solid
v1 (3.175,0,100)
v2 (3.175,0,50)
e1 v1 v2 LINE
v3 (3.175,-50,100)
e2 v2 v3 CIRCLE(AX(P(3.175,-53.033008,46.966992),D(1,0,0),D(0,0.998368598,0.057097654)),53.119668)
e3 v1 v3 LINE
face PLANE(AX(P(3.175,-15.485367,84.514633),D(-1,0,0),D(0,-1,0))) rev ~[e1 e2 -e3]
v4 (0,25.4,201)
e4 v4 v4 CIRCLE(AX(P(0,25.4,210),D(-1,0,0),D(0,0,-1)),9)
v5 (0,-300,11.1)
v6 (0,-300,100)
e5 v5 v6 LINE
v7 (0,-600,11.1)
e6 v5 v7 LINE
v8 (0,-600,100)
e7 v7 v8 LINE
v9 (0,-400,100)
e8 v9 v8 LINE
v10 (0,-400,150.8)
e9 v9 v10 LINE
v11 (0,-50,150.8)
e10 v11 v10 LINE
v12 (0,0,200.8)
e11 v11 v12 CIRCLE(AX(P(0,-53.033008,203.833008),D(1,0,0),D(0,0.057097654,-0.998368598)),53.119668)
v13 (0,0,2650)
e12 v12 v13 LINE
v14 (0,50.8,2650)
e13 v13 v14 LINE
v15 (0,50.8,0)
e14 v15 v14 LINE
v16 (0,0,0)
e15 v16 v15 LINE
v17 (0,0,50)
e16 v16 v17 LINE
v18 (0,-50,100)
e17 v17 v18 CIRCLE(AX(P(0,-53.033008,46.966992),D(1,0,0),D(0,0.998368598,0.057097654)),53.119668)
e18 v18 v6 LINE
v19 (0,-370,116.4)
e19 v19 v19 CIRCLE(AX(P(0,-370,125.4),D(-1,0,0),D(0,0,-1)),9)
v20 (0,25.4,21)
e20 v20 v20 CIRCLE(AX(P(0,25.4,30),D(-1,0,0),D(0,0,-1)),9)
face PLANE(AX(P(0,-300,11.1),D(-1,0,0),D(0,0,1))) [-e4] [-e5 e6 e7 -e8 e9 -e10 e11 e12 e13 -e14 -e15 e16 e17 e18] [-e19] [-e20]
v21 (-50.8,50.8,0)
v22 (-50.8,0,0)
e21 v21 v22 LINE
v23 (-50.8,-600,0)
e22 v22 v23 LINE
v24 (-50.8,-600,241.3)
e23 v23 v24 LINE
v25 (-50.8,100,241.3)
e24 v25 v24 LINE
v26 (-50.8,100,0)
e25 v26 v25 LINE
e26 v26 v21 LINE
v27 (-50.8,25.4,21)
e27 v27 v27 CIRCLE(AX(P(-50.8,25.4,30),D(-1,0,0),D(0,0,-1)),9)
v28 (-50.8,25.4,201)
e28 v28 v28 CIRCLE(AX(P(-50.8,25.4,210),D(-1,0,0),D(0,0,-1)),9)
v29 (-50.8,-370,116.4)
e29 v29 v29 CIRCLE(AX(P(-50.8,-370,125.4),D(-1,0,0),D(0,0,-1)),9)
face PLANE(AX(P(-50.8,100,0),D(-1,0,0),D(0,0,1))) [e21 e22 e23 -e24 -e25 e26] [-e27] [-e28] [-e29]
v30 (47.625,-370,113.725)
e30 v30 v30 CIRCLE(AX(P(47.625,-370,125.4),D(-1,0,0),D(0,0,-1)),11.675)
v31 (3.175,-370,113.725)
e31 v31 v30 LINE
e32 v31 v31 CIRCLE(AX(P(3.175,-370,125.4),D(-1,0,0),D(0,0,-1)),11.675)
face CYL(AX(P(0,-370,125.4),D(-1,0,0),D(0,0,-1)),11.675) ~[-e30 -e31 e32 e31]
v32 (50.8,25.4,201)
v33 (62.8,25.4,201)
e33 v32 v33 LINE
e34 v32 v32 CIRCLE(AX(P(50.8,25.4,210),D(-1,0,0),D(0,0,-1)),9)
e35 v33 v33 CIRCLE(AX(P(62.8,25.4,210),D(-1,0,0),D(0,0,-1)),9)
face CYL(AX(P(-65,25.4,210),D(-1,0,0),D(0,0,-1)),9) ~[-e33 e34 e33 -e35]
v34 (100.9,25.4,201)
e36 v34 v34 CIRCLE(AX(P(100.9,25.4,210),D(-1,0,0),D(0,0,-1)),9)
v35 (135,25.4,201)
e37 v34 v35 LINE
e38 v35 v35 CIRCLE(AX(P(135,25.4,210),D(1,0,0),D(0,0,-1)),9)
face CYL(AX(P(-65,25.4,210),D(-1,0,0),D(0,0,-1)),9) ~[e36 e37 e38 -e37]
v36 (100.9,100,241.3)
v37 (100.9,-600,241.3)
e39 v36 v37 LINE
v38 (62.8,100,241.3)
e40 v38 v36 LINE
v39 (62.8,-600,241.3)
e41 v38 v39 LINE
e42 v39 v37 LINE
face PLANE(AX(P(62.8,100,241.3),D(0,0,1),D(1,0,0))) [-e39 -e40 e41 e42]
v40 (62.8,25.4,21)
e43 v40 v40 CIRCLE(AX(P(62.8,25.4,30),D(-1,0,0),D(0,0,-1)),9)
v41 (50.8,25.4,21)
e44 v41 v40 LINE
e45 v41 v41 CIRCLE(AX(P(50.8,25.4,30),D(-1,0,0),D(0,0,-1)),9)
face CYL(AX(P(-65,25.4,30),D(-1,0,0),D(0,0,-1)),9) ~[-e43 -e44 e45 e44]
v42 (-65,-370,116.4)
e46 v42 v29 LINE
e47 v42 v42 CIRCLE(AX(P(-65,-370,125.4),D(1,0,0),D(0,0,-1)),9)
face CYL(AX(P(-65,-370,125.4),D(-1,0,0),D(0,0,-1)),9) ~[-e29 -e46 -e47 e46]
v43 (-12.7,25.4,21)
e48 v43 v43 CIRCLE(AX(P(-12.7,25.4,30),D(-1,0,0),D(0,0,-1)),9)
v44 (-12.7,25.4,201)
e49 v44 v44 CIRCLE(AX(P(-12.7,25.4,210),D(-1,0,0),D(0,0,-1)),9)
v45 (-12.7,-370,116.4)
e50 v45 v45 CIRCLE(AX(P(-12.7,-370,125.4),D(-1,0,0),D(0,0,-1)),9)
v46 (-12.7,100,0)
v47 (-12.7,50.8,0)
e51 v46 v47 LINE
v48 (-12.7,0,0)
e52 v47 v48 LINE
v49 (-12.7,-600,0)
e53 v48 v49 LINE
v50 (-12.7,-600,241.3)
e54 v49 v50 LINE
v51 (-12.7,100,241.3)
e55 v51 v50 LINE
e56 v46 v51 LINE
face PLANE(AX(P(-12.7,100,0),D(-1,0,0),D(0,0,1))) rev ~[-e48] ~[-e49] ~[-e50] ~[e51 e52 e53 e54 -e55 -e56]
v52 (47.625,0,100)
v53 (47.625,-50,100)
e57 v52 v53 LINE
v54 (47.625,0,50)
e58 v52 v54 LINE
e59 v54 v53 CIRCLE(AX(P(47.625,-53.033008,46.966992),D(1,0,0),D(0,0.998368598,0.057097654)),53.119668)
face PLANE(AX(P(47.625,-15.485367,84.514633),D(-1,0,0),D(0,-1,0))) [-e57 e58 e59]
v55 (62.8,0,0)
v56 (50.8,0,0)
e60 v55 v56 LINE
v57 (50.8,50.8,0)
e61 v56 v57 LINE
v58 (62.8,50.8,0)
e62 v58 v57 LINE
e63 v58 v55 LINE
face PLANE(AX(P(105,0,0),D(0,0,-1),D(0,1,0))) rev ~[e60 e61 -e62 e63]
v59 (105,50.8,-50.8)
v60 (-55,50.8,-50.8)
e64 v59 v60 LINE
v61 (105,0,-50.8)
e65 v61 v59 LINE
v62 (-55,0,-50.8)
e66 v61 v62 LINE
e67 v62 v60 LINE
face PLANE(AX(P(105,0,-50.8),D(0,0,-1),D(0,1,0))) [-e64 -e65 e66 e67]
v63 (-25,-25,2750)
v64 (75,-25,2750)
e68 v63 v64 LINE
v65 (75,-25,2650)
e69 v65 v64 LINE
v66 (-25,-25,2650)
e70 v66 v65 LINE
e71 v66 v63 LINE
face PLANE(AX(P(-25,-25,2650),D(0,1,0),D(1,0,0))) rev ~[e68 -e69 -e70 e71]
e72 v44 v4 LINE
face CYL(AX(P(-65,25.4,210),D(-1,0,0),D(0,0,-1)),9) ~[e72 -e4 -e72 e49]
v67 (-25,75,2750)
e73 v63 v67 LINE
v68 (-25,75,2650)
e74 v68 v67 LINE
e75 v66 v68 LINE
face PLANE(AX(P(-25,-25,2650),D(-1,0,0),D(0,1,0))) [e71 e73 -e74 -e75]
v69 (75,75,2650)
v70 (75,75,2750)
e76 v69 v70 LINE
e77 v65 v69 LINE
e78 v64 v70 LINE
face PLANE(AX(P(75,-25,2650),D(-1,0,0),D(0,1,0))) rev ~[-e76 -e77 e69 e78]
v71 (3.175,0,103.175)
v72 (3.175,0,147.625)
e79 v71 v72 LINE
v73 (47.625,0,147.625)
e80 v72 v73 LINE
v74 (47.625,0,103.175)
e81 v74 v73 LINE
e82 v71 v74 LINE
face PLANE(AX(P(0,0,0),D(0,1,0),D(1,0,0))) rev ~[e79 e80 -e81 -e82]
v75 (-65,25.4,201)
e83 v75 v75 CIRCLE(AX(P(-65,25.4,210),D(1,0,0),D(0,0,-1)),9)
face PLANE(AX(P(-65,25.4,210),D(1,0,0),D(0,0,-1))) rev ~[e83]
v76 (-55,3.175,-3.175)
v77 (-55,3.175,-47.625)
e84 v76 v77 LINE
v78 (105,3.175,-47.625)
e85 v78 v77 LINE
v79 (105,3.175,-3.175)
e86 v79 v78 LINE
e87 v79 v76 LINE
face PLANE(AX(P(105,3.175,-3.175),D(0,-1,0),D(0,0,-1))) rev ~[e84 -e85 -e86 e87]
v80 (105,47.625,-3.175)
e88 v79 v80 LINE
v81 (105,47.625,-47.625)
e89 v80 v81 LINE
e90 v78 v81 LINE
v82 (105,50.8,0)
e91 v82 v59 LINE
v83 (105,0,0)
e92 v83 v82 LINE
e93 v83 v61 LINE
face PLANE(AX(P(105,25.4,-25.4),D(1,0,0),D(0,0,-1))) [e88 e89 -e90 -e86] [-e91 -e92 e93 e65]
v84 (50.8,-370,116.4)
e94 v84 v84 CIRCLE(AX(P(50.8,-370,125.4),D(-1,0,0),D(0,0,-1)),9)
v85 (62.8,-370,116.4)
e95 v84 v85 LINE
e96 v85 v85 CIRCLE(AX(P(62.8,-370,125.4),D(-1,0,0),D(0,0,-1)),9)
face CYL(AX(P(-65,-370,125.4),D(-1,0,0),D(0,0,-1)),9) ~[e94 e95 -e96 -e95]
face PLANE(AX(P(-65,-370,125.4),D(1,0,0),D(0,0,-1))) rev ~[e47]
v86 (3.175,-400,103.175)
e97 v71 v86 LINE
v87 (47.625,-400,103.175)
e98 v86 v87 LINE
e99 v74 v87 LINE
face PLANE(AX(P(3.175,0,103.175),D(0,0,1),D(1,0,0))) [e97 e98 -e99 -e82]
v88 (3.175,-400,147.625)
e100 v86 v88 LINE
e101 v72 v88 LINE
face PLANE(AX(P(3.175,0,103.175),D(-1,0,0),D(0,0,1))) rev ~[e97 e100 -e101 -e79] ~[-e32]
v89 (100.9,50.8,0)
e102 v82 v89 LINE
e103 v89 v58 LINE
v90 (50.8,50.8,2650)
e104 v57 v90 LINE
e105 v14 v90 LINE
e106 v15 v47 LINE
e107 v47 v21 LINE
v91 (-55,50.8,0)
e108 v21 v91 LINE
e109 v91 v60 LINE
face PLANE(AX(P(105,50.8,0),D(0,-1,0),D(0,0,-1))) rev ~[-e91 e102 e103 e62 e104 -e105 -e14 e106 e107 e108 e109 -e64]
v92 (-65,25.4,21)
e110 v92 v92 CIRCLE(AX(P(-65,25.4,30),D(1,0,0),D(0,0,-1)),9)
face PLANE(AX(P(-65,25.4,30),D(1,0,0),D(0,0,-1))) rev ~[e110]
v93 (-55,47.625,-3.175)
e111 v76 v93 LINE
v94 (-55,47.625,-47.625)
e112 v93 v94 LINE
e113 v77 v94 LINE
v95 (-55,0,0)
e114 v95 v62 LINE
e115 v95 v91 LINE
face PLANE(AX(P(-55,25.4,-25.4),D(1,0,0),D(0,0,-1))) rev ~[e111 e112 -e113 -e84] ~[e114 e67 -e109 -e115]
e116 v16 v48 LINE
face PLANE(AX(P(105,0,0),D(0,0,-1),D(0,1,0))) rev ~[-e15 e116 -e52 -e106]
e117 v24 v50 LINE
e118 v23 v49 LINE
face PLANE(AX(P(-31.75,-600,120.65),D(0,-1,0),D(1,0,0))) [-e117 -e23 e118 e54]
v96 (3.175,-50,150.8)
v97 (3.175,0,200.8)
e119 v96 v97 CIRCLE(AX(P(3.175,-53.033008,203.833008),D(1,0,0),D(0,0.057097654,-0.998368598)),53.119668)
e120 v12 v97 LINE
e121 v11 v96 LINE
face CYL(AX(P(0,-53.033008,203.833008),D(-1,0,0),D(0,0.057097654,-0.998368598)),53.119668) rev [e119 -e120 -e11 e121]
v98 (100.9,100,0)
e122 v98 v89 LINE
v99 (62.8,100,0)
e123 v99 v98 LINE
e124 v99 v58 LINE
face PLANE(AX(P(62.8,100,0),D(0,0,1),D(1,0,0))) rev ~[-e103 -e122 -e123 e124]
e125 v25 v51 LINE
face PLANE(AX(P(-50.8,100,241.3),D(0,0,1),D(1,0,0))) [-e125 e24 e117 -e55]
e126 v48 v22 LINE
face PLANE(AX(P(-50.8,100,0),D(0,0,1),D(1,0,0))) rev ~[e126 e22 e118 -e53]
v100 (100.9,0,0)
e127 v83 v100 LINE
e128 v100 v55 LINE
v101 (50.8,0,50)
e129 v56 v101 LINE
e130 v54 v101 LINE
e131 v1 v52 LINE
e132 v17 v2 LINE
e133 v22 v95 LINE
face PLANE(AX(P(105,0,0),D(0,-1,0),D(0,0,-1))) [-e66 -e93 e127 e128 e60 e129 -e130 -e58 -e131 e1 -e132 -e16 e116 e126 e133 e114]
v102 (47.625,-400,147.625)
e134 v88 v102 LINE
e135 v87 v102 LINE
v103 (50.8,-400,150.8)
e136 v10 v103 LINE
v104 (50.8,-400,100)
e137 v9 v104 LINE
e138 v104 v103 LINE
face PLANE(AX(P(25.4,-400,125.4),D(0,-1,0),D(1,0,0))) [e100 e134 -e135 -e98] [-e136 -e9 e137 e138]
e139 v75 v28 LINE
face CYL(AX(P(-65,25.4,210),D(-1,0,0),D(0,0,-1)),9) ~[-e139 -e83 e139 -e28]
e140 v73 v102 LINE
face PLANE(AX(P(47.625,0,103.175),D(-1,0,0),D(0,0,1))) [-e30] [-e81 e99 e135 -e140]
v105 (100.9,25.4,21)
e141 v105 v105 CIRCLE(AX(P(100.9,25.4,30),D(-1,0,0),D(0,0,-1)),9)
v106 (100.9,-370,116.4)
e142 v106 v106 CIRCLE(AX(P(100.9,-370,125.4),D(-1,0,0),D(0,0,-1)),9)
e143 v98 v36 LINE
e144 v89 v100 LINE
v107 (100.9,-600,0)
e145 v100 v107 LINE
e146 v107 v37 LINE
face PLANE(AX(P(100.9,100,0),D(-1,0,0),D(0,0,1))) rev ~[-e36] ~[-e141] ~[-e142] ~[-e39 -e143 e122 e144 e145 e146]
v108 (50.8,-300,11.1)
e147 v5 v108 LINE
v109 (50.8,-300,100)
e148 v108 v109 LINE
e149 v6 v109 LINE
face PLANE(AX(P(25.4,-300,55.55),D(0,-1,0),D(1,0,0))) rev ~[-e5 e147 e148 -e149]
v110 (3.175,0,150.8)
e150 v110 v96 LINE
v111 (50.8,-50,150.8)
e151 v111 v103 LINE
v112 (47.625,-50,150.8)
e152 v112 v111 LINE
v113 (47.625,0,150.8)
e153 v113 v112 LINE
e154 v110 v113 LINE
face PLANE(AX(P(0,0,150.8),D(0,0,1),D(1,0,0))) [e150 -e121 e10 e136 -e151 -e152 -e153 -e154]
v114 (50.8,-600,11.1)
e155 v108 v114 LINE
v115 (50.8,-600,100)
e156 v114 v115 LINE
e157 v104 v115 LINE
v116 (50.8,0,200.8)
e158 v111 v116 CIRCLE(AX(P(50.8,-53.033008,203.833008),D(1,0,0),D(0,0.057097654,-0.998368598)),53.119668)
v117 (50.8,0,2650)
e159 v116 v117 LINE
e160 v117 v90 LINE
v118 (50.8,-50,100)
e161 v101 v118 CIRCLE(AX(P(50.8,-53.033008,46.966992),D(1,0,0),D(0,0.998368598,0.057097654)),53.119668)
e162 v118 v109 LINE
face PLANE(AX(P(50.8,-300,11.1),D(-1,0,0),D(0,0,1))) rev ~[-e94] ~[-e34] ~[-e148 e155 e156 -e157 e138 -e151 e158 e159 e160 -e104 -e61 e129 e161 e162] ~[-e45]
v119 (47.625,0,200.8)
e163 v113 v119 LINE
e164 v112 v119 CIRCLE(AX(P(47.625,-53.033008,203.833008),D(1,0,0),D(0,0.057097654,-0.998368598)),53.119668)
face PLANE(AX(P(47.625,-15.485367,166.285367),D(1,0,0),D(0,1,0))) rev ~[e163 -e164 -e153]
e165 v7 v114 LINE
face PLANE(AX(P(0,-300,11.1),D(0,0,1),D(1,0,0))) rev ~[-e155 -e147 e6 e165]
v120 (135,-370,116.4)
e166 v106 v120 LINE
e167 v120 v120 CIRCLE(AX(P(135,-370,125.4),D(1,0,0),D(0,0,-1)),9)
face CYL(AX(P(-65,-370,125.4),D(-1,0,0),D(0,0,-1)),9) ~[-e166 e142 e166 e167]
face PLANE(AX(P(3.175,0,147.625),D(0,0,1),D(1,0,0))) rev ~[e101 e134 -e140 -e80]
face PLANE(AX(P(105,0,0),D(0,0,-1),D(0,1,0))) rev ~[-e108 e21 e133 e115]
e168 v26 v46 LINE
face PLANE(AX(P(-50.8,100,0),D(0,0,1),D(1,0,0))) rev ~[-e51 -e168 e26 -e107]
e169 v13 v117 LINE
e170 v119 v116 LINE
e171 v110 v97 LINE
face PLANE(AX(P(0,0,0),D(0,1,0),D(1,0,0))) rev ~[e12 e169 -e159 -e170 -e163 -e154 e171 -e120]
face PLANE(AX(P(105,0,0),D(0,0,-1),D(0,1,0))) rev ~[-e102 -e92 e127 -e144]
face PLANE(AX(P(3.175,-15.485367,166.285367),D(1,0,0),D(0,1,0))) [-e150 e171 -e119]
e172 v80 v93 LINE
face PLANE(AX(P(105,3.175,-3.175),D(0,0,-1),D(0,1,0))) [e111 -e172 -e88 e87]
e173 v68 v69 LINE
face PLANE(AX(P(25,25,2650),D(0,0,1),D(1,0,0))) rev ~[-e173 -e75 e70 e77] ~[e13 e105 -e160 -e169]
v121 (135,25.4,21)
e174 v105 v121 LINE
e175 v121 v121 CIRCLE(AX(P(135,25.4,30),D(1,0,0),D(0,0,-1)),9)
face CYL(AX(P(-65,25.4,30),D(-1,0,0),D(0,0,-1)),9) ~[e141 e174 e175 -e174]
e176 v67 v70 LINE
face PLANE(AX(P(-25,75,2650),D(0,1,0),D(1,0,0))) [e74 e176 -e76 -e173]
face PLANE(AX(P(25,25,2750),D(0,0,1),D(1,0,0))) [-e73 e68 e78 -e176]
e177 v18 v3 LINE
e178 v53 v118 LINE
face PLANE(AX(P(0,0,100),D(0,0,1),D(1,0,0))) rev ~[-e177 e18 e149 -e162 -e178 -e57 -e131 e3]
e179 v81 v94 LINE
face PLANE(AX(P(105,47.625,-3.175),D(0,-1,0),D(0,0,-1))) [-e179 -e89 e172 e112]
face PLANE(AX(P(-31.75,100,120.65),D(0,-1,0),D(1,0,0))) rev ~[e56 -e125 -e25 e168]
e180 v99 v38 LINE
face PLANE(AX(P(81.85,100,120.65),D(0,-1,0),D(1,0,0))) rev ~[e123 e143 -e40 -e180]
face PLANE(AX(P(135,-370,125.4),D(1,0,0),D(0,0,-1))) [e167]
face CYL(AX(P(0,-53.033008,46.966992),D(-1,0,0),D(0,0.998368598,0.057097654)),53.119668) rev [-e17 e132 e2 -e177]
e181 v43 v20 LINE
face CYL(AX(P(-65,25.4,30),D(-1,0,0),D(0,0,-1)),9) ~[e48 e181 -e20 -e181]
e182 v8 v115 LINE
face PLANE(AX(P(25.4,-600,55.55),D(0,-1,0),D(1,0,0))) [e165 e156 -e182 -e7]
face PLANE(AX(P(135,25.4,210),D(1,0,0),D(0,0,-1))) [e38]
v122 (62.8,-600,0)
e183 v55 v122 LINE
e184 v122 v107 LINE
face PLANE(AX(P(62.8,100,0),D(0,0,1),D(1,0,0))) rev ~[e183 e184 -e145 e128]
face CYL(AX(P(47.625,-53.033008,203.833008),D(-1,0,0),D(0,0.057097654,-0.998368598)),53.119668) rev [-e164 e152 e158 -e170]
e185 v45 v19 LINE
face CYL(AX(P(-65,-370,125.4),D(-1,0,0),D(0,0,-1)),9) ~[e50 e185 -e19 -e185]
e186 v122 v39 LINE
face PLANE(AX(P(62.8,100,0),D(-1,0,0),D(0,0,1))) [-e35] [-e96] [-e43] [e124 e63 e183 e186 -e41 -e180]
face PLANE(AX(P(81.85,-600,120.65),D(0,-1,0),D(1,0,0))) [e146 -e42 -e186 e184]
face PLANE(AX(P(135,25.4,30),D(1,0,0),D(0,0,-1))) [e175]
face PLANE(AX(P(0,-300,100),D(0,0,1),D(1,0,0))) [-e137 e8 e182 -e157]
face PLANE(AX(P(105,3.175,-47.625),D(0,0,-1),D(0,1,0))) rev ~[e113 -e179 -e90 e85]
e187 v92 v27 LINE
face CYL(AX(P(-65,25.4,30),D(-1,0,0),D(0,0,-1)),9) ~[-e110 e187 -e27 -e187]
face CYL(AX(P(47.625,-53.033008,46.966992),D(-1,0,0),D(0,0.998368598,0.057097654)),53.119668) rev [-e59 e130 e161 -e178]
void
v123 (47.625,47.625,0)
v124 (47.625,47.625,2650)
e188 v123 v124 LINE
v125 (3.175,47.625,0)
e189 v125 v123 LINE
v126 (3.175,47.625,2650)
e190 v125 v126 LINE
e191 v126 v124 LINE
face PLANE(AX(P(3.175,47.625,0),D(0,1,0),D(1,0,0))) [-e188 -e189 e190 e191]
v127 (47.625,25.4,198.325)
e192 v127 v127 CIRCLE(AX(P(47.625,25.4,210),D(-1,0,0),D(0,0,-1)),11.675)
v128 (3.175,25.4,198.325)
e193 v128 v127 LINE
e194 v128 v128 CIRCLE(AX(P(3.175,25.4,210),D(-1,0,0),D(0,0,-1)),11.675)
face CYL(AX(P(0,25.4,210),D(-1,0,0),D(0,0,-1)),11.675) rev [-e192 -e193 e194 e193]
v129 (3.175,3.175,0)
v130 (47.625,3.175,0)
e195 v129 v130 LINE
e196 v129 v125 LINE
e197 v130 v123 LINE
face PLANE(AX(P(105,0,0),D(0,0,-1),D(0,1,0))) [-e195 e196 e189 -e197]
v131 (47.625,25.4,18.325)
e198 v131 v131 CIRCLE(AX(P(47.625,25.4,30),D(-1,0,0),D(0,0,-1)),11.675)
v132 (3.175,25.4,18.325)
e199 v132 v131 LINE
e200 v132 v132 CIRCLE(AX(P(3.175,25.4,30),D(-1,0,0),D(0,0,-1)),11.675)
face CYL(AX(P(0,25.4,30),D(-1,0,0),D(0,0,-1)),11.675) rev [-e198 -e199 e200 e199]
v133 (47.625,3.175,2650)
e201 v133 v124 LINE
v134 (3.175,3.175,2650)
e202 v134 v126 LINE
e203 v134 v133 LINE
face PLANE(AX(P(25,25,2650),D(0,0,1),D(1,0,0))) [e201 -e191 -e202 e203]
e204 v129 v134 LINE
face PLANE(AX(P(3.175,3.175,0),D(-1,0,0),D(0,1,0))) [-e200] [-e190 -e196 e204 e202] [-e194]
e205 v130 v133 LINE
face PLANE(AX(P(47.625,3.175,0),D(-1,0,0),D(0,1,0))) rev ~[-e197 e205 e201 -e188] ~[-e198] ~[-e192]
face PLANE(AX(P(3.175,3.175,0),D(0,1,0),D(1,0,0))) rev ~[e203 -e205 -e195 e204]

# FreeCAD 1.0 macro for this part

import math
import FreeCAD as App
import Part
import Sketcher
from FreeCAD import Vector


def add_polygon(sketch, points):
    """Adds a closed chain of lines whose ends are joined by coincident constraints."""
    first, n = sketch.GeometryCount, len(points)
    for a, b in zip(points, points[1:] + points[:1]):
        sketch.addGeometry(Part.LineSegment(App.Vector(*a, 0), App.Vector(*b, 0)), False)
    for i in range(n):
        sketch.addConstraint(Sketcher.Constraint("Coincident", first + i, 2, first + (i + 1) % n, 1))

doc = App.newDocument("Part")
params = doc.addObject("Spreadsheet::Sheet", "Params")
for row, (alias, value) in enumerate([
    ("sketch1_diameter", "18 mm"),
    ("pad1_length", "200 mm"),
    ("sketch2_width", "100 mm"),
    ("pad2_length", "100 mm"),
    ("sketch3_width", "38.1 mm"),
    ("sketch3_height", "241.3 mm"),
    ("pad3_length", "700 mm"),
    ("sketch4_diameter", "18 mm"),
    ("pad4_length", "200 mm"),
    ("sketch5_width", "50.8 mm"),
    ("sketch5_width2", "44.45 mm"),
    ("pad5_length", "160 mm"),
    ("sketch6_width", "38.1 mm"),
    ("sketch6_height", "241.3 mm"),
    ("pad6_length", "700 mm"),
    ("sketch7_width", "50.8 mm"),
    ("sketch7_height", "88.9 mm"),
    ("pad7_length", "300 mm"),
    ("sketch8_width", "50 mm"),
    ("pad8_length", "3.175 mm"),
    ("sketch9_width", "50 mm"),
    ("pad9_length", "3.175 mm"),
    ("sketch10_width", "50 mm"),
    ("pad10_length", "3.175 mm"),
    ("sketch11_diameter", "17 mm"),
    ("sketch11_diameter2", "23.35 mm"),
    ("pad11_length", "50.8 mm"),
    ("sketch12_diameter", "18 mm"),
    ("pad12_length", "50.8 mm"),
    ("sketch13_width", "50.8 mm"),
    ("sketch13_width2", "44.45 mm"),
    ("pad13_length", "400 mm"),
    ("sketch14_diameter", "17 mm"),
    ("sketch14_diameter2", "23.35 mm"),
    ("pad14_length", "50.8 mm"),
    ("sketch15_diameter", "17 mm"),
    ("sketch15_diameter2", "23.35 mm"),
    ("pad15_length", "50.8 mm"),
    ("sketch16_diameter", "18 mm"),
    ("pad16_length", "50.8 mm"),
    ("sketch17_diameter", "18 mm"),
    ("pad17_length", "50.8 mm"),
    ("sketch18_width", "50.8 mm"),
    ("sketch18_width2", "44.45 mm"),
    ("pad18_length", "2650 mm"),
    ("sketch19_width", "50 mm"),
    ("pad19_length", "3.175 mm"),
    ("sketch20_diameter", "18 mm"),
    ("pad20_length", "200 mm"),
], start=1):
    params.set(f"A{row}", alias)
    params.set(f"B{row}", "=" + value)
    params.setAlias(f"B{row}", alias)

body = doc.addObject("PartDesign::Body", "Body")

sketch1 = doc.addObject("Sketcher::SketchObject", "Sketch")
body.addObject(sketch1)
sketch1.AttachmentSupport = (doc.YZ_Plane, [""])
sketch1.MapMode = "FlatFace"
sketch1.AttachmentOffset = App.Placement(Vector(0, 0, -65), App.Rotation())
sketch1.addGeometry(Part.Circle(Vector(25.4, 30, 0), Vector(0, 0, 1), 9), False)
sketch1.addConstraint(Sketcher.Constraint("Diameter", 0, 18.0))
sketch1.addConstraint(Sketcher.Constraint("DistanceY", -1, 1, 0, 3, 30.0))
sketch1.addConstraint(Sketcher.Constraint("DistanceX", -1, 1, 0, 3, 25.4))
sketch1.setExpression("Constraints[0]", "Params.sketch1_diameter")
pad1 = doc.addObject("PartDesign::Pad", "Pad")
body.addObject(pad1)
pad1.Profile = sketch1
pad1.setExpression("Length", "Params.pad1_length")
body2 = doc.addObject("PartDesign::Body", "Body001")

sketch2 = doc.addObject("Sketcher::SketchObject", "Sketch001")
body2.addObject(sketch2)
sketch2.AttachmentSupport = (doc.getObject("XY_Plane001"), [""])
sketch2.MapMode = "FlatFace"
sketch2.AttachmentOffset = App.Placement(Vector(0, 0, 2650), App.Rotation())
add_polygon(sketch2, [(-25, 75), (-25, -25), (75, -25), (75, 75)])
sketch2.addConstraint(Sketcher.Constraint("Vertical", 0))
sketch2.addConstraint(Sketcher.Constraint("Horizontal", 1))
sketch2.addConstraint(Sketcher.Constraint("Vertical", 2))
sketch2.addConstraint(Sketcher.Constraint("Horizontal", 3))
sketch2.addConstraint(Sketcher.Constraint("Equal", 3, 0))
sketch2.addConstraint(Sketcher.Constraint("DistanceX", 1, 1, 1, 2, 100.0))
sketch2.addConstraint(Sketcher.Constraint("DistanceX", 0, 2, -1, 1, 25.0))
sketch2.addConstraint(Sketcher.Constraint("DistanceY", 0, 2, -1, 1, 25.0))
sketch2.setExpression("Constraints[9]", "Params.sketch2_width")
pad2 = doc.addObject("PartDesign::Pad", "Pad001")
body2.addObject(pad2)
pad2.Profile = sketch2
pad2.setExpression("Length", "Params.pad2_length")
body3 = doc.addObject("PartDesign::Body", "Body002")

sketch3 = doc.addObject("Sketcher::SketchObject", "Sketch002")
body3.addObject(sketch3)
sketch3.AttachmentSupport = (doc.getObject("XZ_Plane002"), [""])
sketch3.MapMode = "FlatFace"
sketch3.AttachmentOffset = App.Placement(Vector(0, 0, -100), App.Rotation())
add_polygon(sketch3, [(-50.8, 241.3), (-50.8, 0), (-12.7, 0), (-12.7, 241.3)])
sketch3.addConstraint(Sketcher.Constraint("Vertical", 0))
sketch3.addConstraint(Sketcher.Constraint("Horizontal", 1))
sketch3.addConstraint(Sketcher.Constraint("Vertical", 2))
sketch3.addConstraint(Sketcher.Constraint("Horizontal", 3))
sketch3.addConstraint(Sketcher.Constraint("PointOnObject", 0, 2, -1))
sketch3.addConstraint(Sketcher.Constraint("DistanceX", 1, 1, 1, 2, 38.1))
sketch3.addConstraint(Sketcher.Constraint("DistanceY", 0, 2, 0, 1, 241.3))
sketch3.addConstraint(Sketcher.Constraint("DistanceX", 0, 2, -1, 1, 50.8))
sketch3.setExpression("Constraints[9]", "Params.sketch3_width")
sketch3.setExpression("Constraints[10]", "Params.sketch3_height")
pad3 = doc.addObject("PartDesign::Pad", "Pad002")
body3.addObject(pad3)
pad3.Profile = sketch3
pad3.setExpression("Length", "Params.pad3_length")
body4 = doc.addObject("PartDesign::Body", "Body003")

sketch4 = doc.addObject("Sketcher::SketchObject", "Sketch003")
body4.addObject(sketch4)
sketch4.AttachmentSupport = (doc.getObject("YZ_Plane003"), [""])
sketch4.MapMode = "FlatFace"
sketch4.AttachmentOffset = App.Placement(Vector(0, 0, -65), App.Rotation())
sketch4.addGeometry(Part.Circle(Vector(-370, 125.4, 0), Vector(0, 0, 1), 9), False)
sketch4.addConstraint(Sketcher.Constraint("Diameter", 0, 18.0))
sketch4.addConstraint(Sketcher.Constraint("DistanceX", 0, 3, -1, 1, 370.0))
sketch4.addConstraint(Sketcher.Constraint("DistanceY", -1, 1, 0, 3, 125.4))
sketch4.setExpression("Constraints[0]", "Params.sketch4_diameter")
pad4 = doc.addObject("PartDesign::Pad", "Pad003")
body4.addObject(pad4)
pad4.Profile = sketch4
pad4.setExpression("Length", "Params.pad4_length")
body5 = doc.addObject("PartDesign::Body", "Body004")

sketch5 = doc.addObject("Sketcher::SketchObject", "Sketch004")
body5.addObject(sketch5)
sketch5.AttachmentSupport = (doc.getObject("YZ_Plane004"), [""])
sketch5.MapMode = "FlatFace"
sketch5.AttachmentOffset = App.Placement(Vector(0, 0, 105), App.Rotation())
add_polygon(sketch5, [(50.8, 0), (0, 0), (0, -50.8), (50.8, -50.8)])
add_polygon(sketch5, [(3.175, -47.625), (3.175, -3.175), (47.625, -3.175), (47.625, -47.625)])
sketch5.addConstraint(Sketcher.Constraint("Horizontal", 0))
sketch5.addConstraint(Sketcher.Constraint("Vertical", 1))
sketch5.addConstraint(Sketcher.Constraint("Horizontal", 2))
sketch5.addConstraint(Sketcher.Constraint("Vertical", 3))
sketch5.addConstraint(Sketcher.Constraint("Vertical", 4))
sketch5.addConstraint(Sketcher.Constraint("Horizontal", 5))
sketch5.addConstraint(Sketcher.Constraint("Vertical", 6))
sketch5.addConstraint(Sketcher.Constraint("Horizontal", 7))
sketch5.addConstraint(Sketcher.Constraint("Coincident", 0, 2, -1, 1))
sketch5.addConstraint(Sketcher.Constraint("Equal", 2, 1))
sketch5.addConstraint(Sketcher.Constraint("Equal", 7, 4))
sketch5.addConstraint(Sketcher.Constraint("DistanceX", 0, 2, 0, 1, 50.8))
sketch5.addConstraint(Sketcher.Constraint("DistanceX", 5, 1, 5, 2, 44.45))
sketch5.addConstraint(Sketcher.Constraint("DistanceX", -1, 1, 4, 2, 3.175))
sketch5.addConstraint(Sketcher.Constraint("DistanceY", 4, 2, -1, 1, 3.175))
sketch5.setExpression("Constraints[19]", "Params.sketch5_width")
sketch5.setExpression("Constraints[20]", "Params.sketch5_width2")
pad5 = doc.addObject("PartDesign::Pad", "Pad004")
body5.addObject(pad5)
pad5.Profile = sketch5
pad5.setExpression("Length", "Params.pad5_length")
pad5.Reversed = True
body6 = doc.addObject("PartDesign::Body", "Body005")

sketch6 = doc.addObject("Sketcher::SketchObject", "Sketch005")
body6.addObject(sketch6)
sketch6.AttachmentSupport = (doc.getObject("XZ_Plane005"), [""])
sketch6.MapMode = "FlatFace"
sketch6.AttachmentOffset = App.Placement(Vector(0, 0, -100), App.Rotation())
add_polygon(sketch6, [(62.8, 241.3), (62.8, 0), (100.9, 0), (100.9, 241.3)])
sketch6.addConstraint(Sketcher.Constraint("Vertical", 0))
sketch6.addConstraint(Sketcher.Constraint("Horizontal", 1))
sketch6.addConstraint(Sketcher.Constraint("Vertical", 2))
sketch6.addConstraint(Sketcher.Constraint("Horizontal", 3))
sketch6.addConstraint(Sketcher.Constraint("PointOnObject", 0, 2, -1))
sketch6.addConstraint(Sketcher.Constraint("DistanceX", 1, 1, 1, 2, 38.1))
sketch6.addConstraint(Sketcher.Constraint("DistanceY", 0, 2, 0, 1, 241.3))
sketch6.addConstraint(Sketcher.Constraint("DistanceX", -1, 1, 0, 2, 62.8))
sketch6.setExpression("Constraints[9]", "Params.sketch6_width")
sketch6.setExpression("Constraints[10]", "Params.sketch6_height")
pad6 = doc.addObject("PartDesign::Pad", "Pad005")
body6.addObject(pad6)
pad6.Profile = sketch6
pad6.setExpression("Length", "Params.pad6_length")
body7 = doc.addObject("PartDesign::Body", "Body006")

sketch7 = doc.addObject("Sketcher::SketchObject", "Sketch006")
body7.addObject(sketch7)
sketch7.AttachmentSupport = (doc.getObject("XZ_Plane006"), [""])
sketch7.MapMode = "FlatFace"
sketch7.AttachmentOffset = App.Placement(Vector(0, 0, 300), App.Rotation())
add_polygon(sketch7, [(0, 100), (0, 11.1), (50.8, 11.1), (50.8, 100)])
sketch7.addConstraint(Sketcher.Constraint("Vertical", 0))
sketch7.addConstraint(Sketcher.Constraint("Horizontal", 1))
sketch7.addConstraint(Sketcher.Constraint("Vertical", 2))
sketch7.addConstraint(Sketcher.Constraint("Horizontal", 3))
sketch7.addConstraint(Sketcher.Constraint("PointOnObject", 0, 2, -2))
sketch7.addConstraint(Sketcher.Constraint("DistanceX", 1, 1, 1, 2, 50.8))
sketch7.addConstraint(Sketcher.Constraint("DistanceY", 0, 2, 0, 1, 88.9))
sketch7.addConstraint(Sketcher.Constraint("DistanceY", -1, 1, 2, 2, 100.0))
sketch7.setExpression("Constraints[9]", "Params.sketch7_width")
sketch7.setExpression("Constraints[10]", "Params.sketch7_height")
pad7 = doc.addObject("PartDesign::Pad", "Pad006")
body7.addObject(pad7)
pad7.Profile = sketch7
pad7.setExpression("Length", "Params.pad7_length")
body8 = doc.addObject("PartDesign::Body", "Body007")

sketch8 = doc.addObject("Sketcher::SketchObject", "Sketch007")
body8.addObject(sketch8)
sketch8.AttachmentSupport = (doc.getObject("YZ_Plane007"), [""])
sketch8.MapMode = "FlatFace"
sketch8.AttachmentOffset = App.Placement(Vector(0, 0, 47.625), App.Rotation())
sketch8.addGeometry(Part.LineSegment(Vector(0, 150.8, 0), Vector(0, 200.8, 0)), False)
sketch8.addGeometry(Part.ArcOfCircle(Part.Circle(Vector(-53.033008, 203.833008, 0), Vector(0, 0, 1), 53.119668), math.radians(-86.726765), math.radians(-3.273235)), False)
sketch8.addGeometry(Part.LineSegment(Vector(-50, 150.8, 0), Vector(0, 150.8, 0)), False)
sketch8.addConstraint(Sketcher.Constraint("Coincident", 0, 2, 1, 2))
sketch8.addConstraint(Sketcher.Constraint("Coincident", 1, 1, 2, 1))
sketch8.addConstraint(Sketcher.Constraint("Coincident", 2, 2, 0, 1))
sketch8.addConstraint(Sketcher.Constraint("Vertical", 0))
sketch8.addConstraint(Sketcher.Constraint("Horizontal", 2))
sketch8.addConstraint(Sketcher.Constraint("PointOnObject", 0, 2, -2))
sketch8.addConstraint(Sketcher.Constraint("Equal", 2, 0))
sketch8.addConstraint(Sketcher.Constraint("DistanceX", 2, 1, 2, 2, 50.0))
sketch8.addConstraint(Sketcher.Constraint("DistanceY", -1, 1, 0, 2, 200.8))
sketch8.addConstraint(Sketcher.Constraint("Radius", 1, 53.119668))
sketch8.setExpression("Constraints[7]", "Params.sketch8_width")
pad8 = doc.addObject("PartDesign::Pad", "Pad007")
body8.addObject(pad8)
pad8.Profile = sketch8
pad8.setExpression("Length", "Params.pad8_length")
body9 = doc.addObject("PartDesign::Body", "Body008")

sketch9 = doc.addObject("Sketcher::SketchObject", "Sketch008")
body9.addObject(sketch9)
sketch9.AttachmentSupport = (doc.getObject("YZ_Plane008"), [""])
sketch9.MapMode = "FlatFace"
sketch9.addGeometry(Part.LineSegment(Vector(0, 50, 0), Vector(0, 100, 0)), False)
sketch9.addGeometry(Part.LineSegment(Vector(0, 100, 0), Vector(-50, 100, 0)), False)
sketch9.addGeometry(Part.ArcOfCircle(Part.Circle(Vector(-53.033008, 46.966992, 0), Vector(0, 0, 1), 53.119668), math.radians(3.273235), math.radians(86.726765)), False)
sketch9.addConstraint(Sketcher.Constraint("Coincident", 0, 2, 1, 1))
sketch9.addConstraint(Sketcher.Constraint("Coincident", 1, 2, 2, 2))
sketch9.addConstraint(Sketcher.Constraint("Coincident", 2, 1, 0, 1))
sketch9.addConstraint(Sketcher.Constraint("Vertical", 0))
sketch9.addConstraint(Sketcher.Constraint("Horizontal", 1))
sketch9.addConstraint(Sketcher.Constraint("PointOnObject", 0, 2, -2))
sketch9.addConstraint(Sketcher.Constraint("Equal", 1, 0))
sketch9.addConstraint(Sketcher.Constraint("DistanceX", 1, 2, 1, 1, 50.0))
sketch9.addConstraint(Sketcher.Constraint("DistanceY", -1, 1, 0, 2, 100.0))
sketch9.addConstraint(Sketcher.Constraint("Radius", 2, 53.119668))
sketch9.setExpression("Constraints[7]", "Params.sketch9_width")
pad9 = doc.addObject("PartDesign::Pad", "Pad008")
body9.addObject(pad9)
pad9.Profile = sketch9
pad9.setExpression("Length", "Params.pad9_length")
body10 = doc.addObject("PartDesign::Body", "Body009")

sketch10 = doc.addObject("Sketcher::SketchObject", "Sketch009")
body10.addObject(sketch10)
sketch10.AttachmentSupport = (doc.getObject("YZ_Plane009"), [""])
sketch10.MapMode = "FlatFace"
sketch10.addGeometry(Part.LineSegment(Vector(0, 150.8, 0), Vector(0, 200.8, 0)), False)
sketch10.addGeometry(Part.ArcOfCircle(Part.Circle(Vector(-53.033008, 203.833008, 0), Vector(0, 0, 1), 53.119668), math.radians(-86.726765), math.radians(-3.273235)), False)
sketch10.addGeometry(Part.LineSegment(Vector(-50, 150.8, 0), Vector(0, 150.8, 0)), False)
sketch10.addConstraint(Sketcher.Constraint("Coincident", 0, 2, 1, 2))
sketch10.addConstraint(Sketcher.Constraint("Coincident", 1, 1, 2, 1))
sketch10.addConstraint(Sketcher.Constraint("Coincident", 2, 2, 0, 1))
sketch10.addConstraint(Sketcher.Constraint("Vertical", 0))
sketch10.addConstraint(Sketcher.Constraint("Horizontal", 2))
sketch10.addConstraint(Sketcher.Constraint("PointOnObject", 0, 2, -2))
sketch10.addConstraint(Sketcher.Constraint("Equal", 2, 0))
sketch10.addConstraint(Sketcher.Constraint("DistanceX", 2, 1, 2, 2, 50.0))
sketch10.addConstraint(Sketcher.Constraint("DistanceY", -1, 1, 0, 2, 200.8))
sketch10.addConstraint(Sketcher.Constraint("Radius", 1, 53.119668))
sketch10.setExpression("Constraints[7]", "Params.sketch10_width")
pad10 = doc.addObject("PartDesign::Pad", "Pad009")
body10.addObject(pad10)
pad10.Profile = sketch10
pad10.setExpression("Length", "Params.pad10_length")
body11 = doc.addObject("PartDesign::Body", "Body010")

sketch11 = doc.addObject("Sketcher::SketchObject", "Sketch010")
body11.addObject(sketch11)
sketch11.AttachmentSupport = (doc.getObject("YZ_Plane010"), [""])
sketch11.MapMode = "FlatFace"
sketch11.addGeometry(Part.Circle(Vector(-370, 125.4, 0), Vector(0, 0, 1), 11.675), False)
sketch11.addGeometry(Part.Circle(Vector(-370, 125.4, 0), Vector(0, 0, 1), 8.5), False)
sketch11.addConstraint(Sketcher.Constraint("Coincident", 1, 3, 0, 3))
sketch11.addConstraint(Sketcher.Constraint("Diameter", 1, 17.0))
sketch11.addConstraint(Sketcher.Constraint("Diameter", 0, 23.35))
sketch11.addConstraint(Sketcher.Constraint("DistanceX", 0, 3, -1, 1, 370.0))
sketch11.addConstraint(Sketcher.Constraint("DistanceY", -1, 1, 0, 3, 125.4))
sketch11.setExpression("Constraints[1]", "Params.sketch11_diameter")
sketch11.setExpression("Constraints[2]", "Params.sketch11_diameter2")
pad11 = doc.addObject("PartDesign::Pad", "Pad010")
body11.addObject(pad11)
pad11.Profile = sketch11
pad11.setExpression("Length", "Params.pad11_length")
body12 = doc.addObject("PartDesign::Body", "Body011")

sketch12 = doc.addObject("Sketcher::SketchObject", "Sketch011")
body12.addObject(sketch12)
sketch12.AttachmentSupport = (doc.getObject("YZ_Plane011"), [""])
sketch12.MapMode = "FlatFace"
sketch12.addGeometry(Part.Circle(Vector(-370, 125.4, 0), Vector(0, 0, 1), 9), False)
sketch12.addConstraint(Sketcher.Constraint("Diameter", 0, 18.0))
sketch12.addConstraint(Sketcher.Constraint("DistanceX", 0, 3, -1, 1, 370.0))
sketch12.addConstraint(Sketcher.Constraint("DistanceY", -1, 1, 0, 3, 125.4))
sketch12.setExpression("Constraints[0]", "Params.sketch12_diameter")
pad12 = doc.addObject("PartDesign::Pad", "Pad011")
body12.addObject(pad12)
pad12.Profile = sketch12
pad12.setExpression("Length", "Params.pad12_length")
body13 = doc.addObject("PartDesign::Body", "Body012")

sketch13 = doc.addObject("Sketcher::SketchObject", "Sketch012")
body13.addObject(sketch13)
sketch13.AttachmentSupport = (doc.getObject("XZ_Plane012"), [""])
sketch13.MapMode = "FlatFace"
add_polygon(sketch13, [(0, 150.8), (0, 100), (50.8, 100), (50.8, 150.8)])
add_polygon(sketch13, [(47.625, 103.175), (3.175, 103.175), (3.175, 147.625), (47.625, 147.625)])
sketch13.addConstraint(Sketcher.Constraint("Vertical", 0))
sketch13.addConstraint(Sketcher.Constraint("Horizontal", 1))
sketch13.addConstraint(Sketcher.Constraint("Vertical", 2))
sketch13.addConstraint(Sketcher.Constraint("Horizontal", 3))
sketch13.addConstraint(Sketcher.Constraint("Horizontal", 4))
sketch13.addConstraint(Sketcher.Constraint("Vertical", 5))
sketch13.addConstraint(Sketcher.Constraint("Horizontal", 6))
sketch13.addConstraint(Sketcher.Constraint("Vertical", 7))
sketch13.addConstraint(Sketcher.Constraint("PointOnObject", 0, 2, -2))
sketch13.addConstraint(Sketcher.Constraint("Equal", 3, 0))
sketch13.addConstraint(Sketcher.Constraint("Equal", 6, 5))
sketch13.addConstraint(Sketcher.Constraint("DistanceX", 1, 1, 1, 2, 50.8))
sketch13.addConstraint(Sketcher.Constraint("DistanceY", -1, 1, 0, 2, 100.0))
sketch13.addConstraint(Sketcher.Constraint("DistanceX", 4, 2, 4, 1, 44.45))
sketch13.addConstraint(Sketcher.Constraint("DistanceX", -1, 1, 4, 2, 3.175))
sketch13.addConstraint(Sketcher.Constraint("DistanceY", -1, 1, 4, 2, 103.175))
sketch13.setExpression("Constraints[19]", "Params.sketch13_width")
sketch13.setExpression("Constraints[21]", "Params.sketch13_width2")
pad13 = doc.addObject("PartDesign::Pad", "Pad012")
body13.addObject(pad13)
pad13.Profile = sketch13
pad13.setExpression("Length", "Params.pad13_length")
doc.recompute()

boolean = doc.addObject("PartDesign::Boolean", "Boolean")
body13.addObject(boolean)
boolean.Type = "Cut"
boolean.addObjects([body12])
doc.recompute()

boolean2 = doc.addObject("PartDesign::Boolean", "Boolean001")
body13.addObject(boolean2)
boolean2.Type = "Fuse"
boolean2.addObjects([body11])
body14 = doc.addObject("PartDesign::Body", "Body013")

sketch14 = doc.addObject("Sketcher::SketchObject", "Sketch013")
body14.addObject(sketch14)
sketch14.AttachmentSupport = (doc.getObject("YZ_Plane013"), [""])
sketch14.MapMode = "FlatFace"
sketch14.addGeometry(Part.Circle(Vector(25.4, 30, 0), Vector(0, 0, 1), 11.675), False)
sketch14.addGeometry(Part.Circle(Vector(25.4, 30, 0), Vector(0, 0, 1), 8.5), False)
sketch14.addConstraint(Sketcher.Constraint("Coincident", 1, 3, 0, 3))
sketch14.addConstraint(Sketcher.Constraint("Diameter", 1, 17.0))
sketch14.addConstraint(Sketcher.Constraint("Diameter", 0, 23.35))
sketch14.addConstraint(Sketcher.Constraint("DistanceY", -1, 1, 0, 3, 30.0))
sketch14.addConstraint(Sketcher.Constraint("DistanceX", -1, 1, 0, 3, 25.4))
sketch14.setExpression("Constraints[1]", "Params.sketch14_diameter")
sketch14.setExpression("Constraints[2]", "Params.sketch14_diameter2")
pad14 = doc.addObject("PartDesign::Pad", "Pad013")
body14.addObject(pad14)
pad14.Profile = sketch14
pad14.setExpression("Length", "Params.pad14_length")
body15 = doc.addObject("PartDesign::Body", "Body014")

sketch15 = doc.addObject("Sketcher::SketchObject", "Sketch014")
body15.addObject(sketch15)
sketch15.AttachmentSupport = (doc.getObject("YZ_Plane014"), [""])
sketch15.MapMode = "FlatFace"
sketch15.addGeometry(Part.Circle(Vector(25.4, 210, 0), Vector(0, 0, 1), 11.675), False)
sketch15.addGeometry(Part.Circle(Vector(25.4, 210, 0), Vector(0, 0, 1), 8.5), False)
sketch15.addConstraint(Sketcher.Constraint("Coincident", 1, 3, 0, 3))
sketch15.addConstraint(Sketcher.Constraint("Diameter", 1, 17.0))
sketch15.addConstraint(Sketcher.Constraint("Diameter", 0, 23.35))
sketch15.addConstraint(Sketcher.Constraint("DistanceY", -1, 1, 0, 3, 210.0))
sketch15.addConstraint(Sketcher.Constraint("DistanceX", -1, 1, 0, 3, 25.4))
sketch15.setExpression("Constraints[1]", "Params.sketch15_diameter")
sketch15.setExpression("Constraints[2]", "Params.sketch15_diameter2")
pad15 = doc.addObject("PartDesign::Pad", "Pad014")
body15.addObject(pad15)
pad15.Profile = sketch15
pad15.setExpression("Length", "Params.pad15_length")
body16 = doc.addObject("PartDesign::Body", "Body015")

sketch16 = doc.addObject("Sketcher::SketchObject", "Sketch015")
body16.addObject(sketch16)
sketch16.AttachmentSupport = (doc.getObject("YZ_Plane015"), [""])
sketch16.MapMode = "FlatFace"
sketch16.addGeometry(Part.Circle(Vector(25.4, 210, 0), Vector(0, 0, 1), 9), False)
sketch16.addConstraint(Sketcher.Constraint("Diameter", 0, 18.0))
sketch16.addConstraint(Sketcher.Constraint("DistanceY", -1, 1, 0, 3, 210.0))
sketch16.addConstraint(Sketcher.Constraint("DistanceX", -1, 1, 0, 3, 25.4))
sketch16.setExpression("Constraints[0]", "Params.sketch16_diameter")
pad16 = doc.addObject("PartDesign::Pad", "Pad015")
body16.addObject(pad16)
pad16.Profile = sketch16
pad16.setExpression("Length", "Params.pad16_length")
body17 = doc.addObject("PartDesign::Body", "Body016")

sketch17 = doc.addObject("Sketcher::SketchObject", "Sketch016")
body17.addObject(sketch17)
sketch17.AttachmentSupport = (doc.getObject("YZ_Plane016"), [""])
sketch17.MapMode = "FlatFace"
sketch17.addGeometry(Part.Circle(Vector(25.4, 30, 0), Vector(0, 0, 1), 9), False)
sketch17.addConstraint(Sketcher.Constraint("Diameter", 0, 18.0))
sketch17.addConstraint(Sketcher.Constraint("DistanceY", -1, 1, 0, 3, 30.0))
sketch17.addConstraint(Sketcher.Constraint("DistanceX", -1, 1, 0, 3, 25.4))
sketch17.setExpression("Constraints[0]", "Params.sketch17_diameter")
pad17 = doc.addObject("PartDesign::Pad", "Pad016")
body17.addObject(pad17)
pad17.Profile = sketch17
pad17.setExpression("Length", "Params.pad17_length")
body18 = doc.addObject("PartDesign::Body", "Body017")

sketch18 = doc.addObject("Sketcher::SketchObject", "Sketch017")
body18.addObject(sketch18)
sketch18.AttachmentSupport = (doc.getObject("XY_Plane017"), [""])
sketch18.MapMode = "FlatFace"
add_polygon(sketch18, [(0, 50.8), (0, 0), (50.8, 0), (50.8, 50.8)])
add_polygon(sketch18, [(47.625, 3.175), (3.175, 3.175), (3.175, 47.625), (47.625, 47.625)])
sketch18.addConstraint(Sketcher.Constraint("Vertical", 0))
sketch18.addConstraint(Sketcher.Constraint("Horizontal", 1))
sketch18.addConstraint(Sketcher.Constraint("Vertical", 2))
sketch18.addConstraint(Sketcher.Constraint("Horizontal", 3))
sketch18.addConstraint(Sketcher.Constraint("Horizontal", 4))
sketch18.addConstraint(Sketcher.Constraint("Vertical", 5))
sketch18.addConstraint(Sketcher.Constraint("Horizontal", 6))
sketch18.addConstraint(Sketcher.Constraint("Vertical", 7))
sketch18.addConstraint(Sketcher.Constraint("Coincident", 0, 2, -1, 1))
sketch18.addConstraint(Sketcher.Constraint("Equal", 3, 0))
sketch18.addConstraint(Sketcher.Constraint("Equal", 6, 5))
sketch18.addConstraint(Sketcher.Constraint("DistanceX", 1, 1, 1, 2, 50.8))
sketch18.addConstraint(Sketcher.Constraint("DistanceX", 4, 2, 4, 1, 44.45))
sketch18.addConstraint(Sketcher.Constraint("DistanceX", -1, 1, 4, 2, 3.175))
sketch18.addConstraint(Sketcher.Constraint("DistanceY", -1, 1, 4, 2, 3.175))
sketch18.setExpression("Constraints[19]", "Params.sketch18_width")
sketch18.setExpression("Constraints[20]", "Params.sketch18_width2")
pad18 = doc.addObject("PartDesign::Pad", "Pad017")
body18.addObject(pad18)
pad18.Profile = sketch18
pad18.setExpression("Length", "Params.pad18_length")
doc.recompute()

boolean3 = doc.addObject("PartDesign::Boolean", "Boolean002")
body18.addObject(boolean3)
boolean3.Type = "Cut"
boolean3.addObjects([body17])
doc.recompute()

boolean4 = doc.addObject("PartDesign::Boolean", "Boolean003")
body18.addObject(boolean4)
boolean4.Type = "Cut"
boolean4.addObjects([body16])
doc.recompute()

boolean5 = doc.addObject("PartDesign::Boolean", "Boolean004")
body18.addObject(boolean5)
boolean5.Type = "Fuse"
boolean5.addObjects([body14])
doc.recompute()

boolean6 = doc.addObject("PartDesign::Boolean", "Boolean005")
body18.addObject(boolean6)
boolean6.Type = "Fuse"
boolean6.addObjects([body15])
body19 = doc.addObject("PartDesign::Body", "Body018")
body19.AllowCompound = True

sketch19 = doc.addObject("Sketcher::SketchObject", "Sketch018")
body19.addObject(sketch19)
sketch19.AttachmentSupport = (doc.getObject("YZ_Plane018"), [""])
sketch19.MapMode = "FlatFace"
sketch19.AttachmentOffset = App.Placement(Vector(0, 0, 47.625), App.Rotation())
sketch19.addGeometry(Part.LineSegment(Vector(0, 50, 0), Vector(0, 100, 0)), False)
sketch19.addGeometry(Part.LineSegment(Vector(0, 100, 0), Vector(-50, 100, 0)), False)
sketch19.addGeometry(Part.ArcOfCircle(Part.Circle(Vector(-53.033008, 46.966992, 0), Vector(0, 0, 1), 53.119668), math.radians(3.273235), math.radians(86.726765)), False)
sketch19.addConstraint(Sketcher.Constraint("Coincident", 0, 2, 1, 1))
sketch19.addConstraint(Sketcher.Constraint("Coincident", 1, 2, 2, 2))
sketch19.addConstraint(Sketcher.Constraint("Coincident", 2, 1, 0, 1))
sketch19.addConstraint(Sketcher.Constraint("Vertical", 0))
sketch19.addConstraint(Sketcher.Constraint("Horizontal", 1))
sketch19.addConstraint(Sketcher.Constraint("PointOnObject", 0, 2, -2))
sketch19.addConstraint(Sketcher.Constraint("Equal", 1, 0))
sketch19.addConstraint(Sketcher.Constraint("DistanceX", 1, 2, 1, 1, 50.0))
sketch19.addConstraint(Sketcher.Constraint("DistanceY", -1, 1, 0, 2, 100.0))
sketch19.addConstraint(Sketcher.Constraint("Radius", 2, 53.119668))
sketch19.setExpression("Constraints[7]", "Params.sketch19_width")
pad19 = doc.addObject("PartDesign::Pad", "Pad018")
body19.addObject(pad19)
pad19.Profile = sketch19
pad19.setExpression("Length", "Params.pad19_length")
doc.recompute()

boolean7 = doc.addObject("PartDesign::Boolean", "Boolean006")
body19.addObject(boolean7)
boolean7.Type = "Fuse"
boolean7.addObjects([body8])
doc.recompute()

boolean8 = doc.addObject("PartDesign::Boolean", "Boolean007")
body19.addObject(boolean8)
boolean8.Type = "Fuse"
boolean8.addObjects([body9])
doc.recompute()

boolean9 = doc.addObject("PartDesign::Boolean", "Boolean008")
body19.addObject(boolean9)
boolean9.Type = "Fuse"
boolean9.addObjects([body10])
doc.recompute()

boolean10 = doc.addObject("PartDesign::Boolean", "Boolean009")
body19.addObject(boolean10)
boolean10.Type = "Fuse"
boolean10.addObjects([body13])
doc.recompute()

boolean11 = doc.addObject("PartDesign::Boolean", "Boolean010")
body19.addObject(boolean11)
boolean11.Type = "Fuse"
boolean11.addObjects([body18])
doc.recompute()

boolean12 = doc.addObject("PartDesign::Boolean", "Boolean011")
body19.addObject(boolean12)
boolean12.Type = "Fuse"
boolean12.addObjects([body3])
doc.recompute()

boolean13 = doc.addObject("PartDesign::Boolean", "Boolean012")
body19.addObject(boolean13)
boolean13.Type = "Fuse"
boolean13.addObjects([body4])
doc.recompute()

boolean14 = doc.addObject("PartDesign::Boolean", "Boolean013")
body19.addObject(boolean14)
boolean14.Type = "Fuse"
boolean14.addObjects([body5])
doc.recompute()

boolean15 = doc.addObject("PartDesign::Boolean", "Boolean014")
body19.addObject(boolean15)
boolean15.Type = "Fuse"
boolean15.addObjects([body6])
doc.recompute()

boolean16 = doc.addObject("PartDesign::Boolean", "Boolean015")
body19.addObject(boolean16)
boolean16.Type = "Fuse"
boolean16.addObjects([body7])
doc.recompute()

boolean17 = doc.addObject("PartDesign::Boolean", "Boolean016")
body19.addObject(boolean17)
boolean17.Type = "Fuse"
boolean17.addObjects([body2])
body20 = doc.addObject("PartDesign::Body", "Body019")
body20.AllowCompound = True

sketch20 = doc.addObject("Sketcher::SketchObject", "Sketch019")
body20.addObject(sketch20)
sketch20.AttachmentSupport = (doc.getObject("YZ_Plane019"), [""])
sketch20.MapMode = "FlatFace"
sketch20.AttachmentOffset = App.Placement(Vector(0, 0, -65), App.Rotation())
sketch20.addGeometry(Part.Circle(Vector(25.4, 210, 0), Vector(0, 0, 1), 9), False)
sketch20.addConstraint(Sketcher.Constraint("Diameter", 0, 18.0))
sketch20.addConstraint(Sketcher.Constraint("DistanceY", -1, 1, 0, 3, 210.0))
sketch20.addConstraint(Sketcher.Constraint("DistanceX", -1, 1, 0, 3, 25.4))
sketch20.setExpression("Constraints[0]", "Params.sketch20_diameter")
pad20 = doc.addObject("PartDesign::Pad", "Pad019")
body20.addObject(pad20)
pad20.Profile = sketch20
pad20.setExpression("Length", "Params.pad20_length")
doc.recompute()

boolean18 = doc.addObject("PartDesign::Boolean", "Boolean017")
body20.addObject(boolean18)
boolean18.Type = "Fuse"
boolean18.addObjects([body])
doc.recompute()

boolean19 = doc.addObject("PartDesign::Boolean", "Boolean018")
body20.addObject(boolean19)
boolean19.Type = "Fuse"
boolean19.addObjects([body19])

doc.recompute()
